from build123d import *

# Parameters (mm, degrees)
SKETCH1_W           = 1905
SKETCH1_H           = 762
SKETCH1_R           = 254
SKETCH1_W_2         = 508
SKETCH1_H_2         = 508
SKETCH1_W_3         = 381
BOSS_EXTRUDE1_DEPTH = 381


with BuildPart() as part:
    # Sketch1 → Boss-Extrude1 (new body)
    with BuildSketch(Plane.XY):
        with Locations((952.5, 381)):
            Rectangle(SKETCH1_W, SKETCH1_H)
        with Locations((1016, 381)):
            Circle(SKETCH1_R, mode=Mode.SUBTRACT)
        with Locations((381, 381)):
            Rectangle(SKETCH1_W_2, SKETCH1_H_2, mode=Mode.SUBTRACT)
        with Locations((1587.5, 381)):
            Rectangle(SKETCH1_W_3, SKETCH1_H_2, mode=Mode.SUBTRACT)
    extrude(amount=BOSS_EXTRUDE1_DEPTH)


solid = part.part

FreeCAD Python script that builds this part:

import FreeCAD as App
import Part
import Sketcher
from FreeCAD import Vector
Q = App.Units.Quantity

doc = App.newDocument("Part")
body = doc.addObject("PartDesign::Body", "Body")

# Sketch on XY plane
sketch1 = doc.addObject("Sketcher::SketchObject", "Sketch")
body.addObject(sketch1)
sketch1.AttachmentSupport = (doc.XY_Plane, [""])
sketch1.MapMode = "FlatFace"
sketch1.addGeometry([
    Part.LineSegment(Vector(0, 762, 0), Vector(0, 0, 0)),  # 0
    Part.LineSegment(Vector(0, 0, 0), Vector(1905, 0, 0)),  # 1
    Part.LineSegment(Vector(1905, 0, 0), Vector(1905, 762, 0)),  # 2
    Part.LineSegment(Vector(1905, 762, 0), Vector(0, 762, 0)),  # 3
    Part.LineSegment(Vector(635, 127, 0), Vector(127, 127, 0)),  # 4
    Part.LineSegment(Vector(127, 127, 0), Vector(127, 635, 0)),  # 5
    Part.LineSegment(Vector(127, 635, 0), Vector(635, 635, 0)),  # 6
    Part.LineSegment(Vector(635, 635, 0), Vector(635, 127, 0)),  # 7
    Part.Circle(Vector(1016, 381, 0), Vector(0, 0, 1), 254),  # 8
    Part.LineSegment(Vector(1778, 127, 0), Vector(1397, 127, 0)),  # 9
    Part.LineSegment(Vector(1397, 127, 0), Vector(1397, 635, 0)),  # 10
    Part.LineSegment(Vector(1397, 635, 0), Vector(1778, 635, 0)),  # 11
    Part.LineSegment(Vector(1778, 635, 0), Vector(1778, 127, 0)),  # 12
], False)
sketch1.addConstraint([
    Sketcher.Constraint("Coincident", 0, 2, 1, 1),
    Sketcher.Constraint("Coincident", 1, 2, 2, 1),
    Sketcher.Constraint("Coincident", 2, 2, 3, 1),
    Sketcher.Constraint("Coincident", 3, 2, 0, 1),
    Sketcher.Constraint("Coincident", 4, 2, 5, 1),
    Sketcher.Constraint("Coincident", 5, 2, 6, 1),
    Sketcher.Constraint("Coincident", 6, 2, 7, 1),
    Sketcher.Constraint("Coincident", 7, 2, 4, 1),
    Sketcher.Constraint("Coincident", 9, 2, 10, 1),
    Sketcher.Constraint("Coincident", 10, 2, 11, 1),
    Sketcher.Constraint("Coincident", 11, 2, 12, 1),
    Sketcher.Constraint("Coincident", 12, 2, 9, 1),
    Sketcher.Constraint("Vertical", 0),
    Sketcher.Constraint("Horizontal", 1),
    Sketcher.Constraint("Vertical", 2),
    Sketcher.Constraint("Horizontal", 3),
    Sketcher.Constraint("Horizontal", 4),
    Sketcher.Constraint("Vertical", 5),
    Sketcher.Constraint("Horizontal", 6),
    Sketcher.Constraint("Vertical", 7),
    Sketcher.Constraint("Horizontal", 9),
    Sketcher.Constraint("Vertical", 10),
    Sketcher.Constraint("Horizontal", 11),
    Sketcher.Constraint("Vertical", 12),
    Sketcher.Constraint("Coincident", 0, 2, -1, 1),
    Sketcher.Constraint("Horizontal", 7, 2, 9, 2),
    Sketcher.Constraint("Horizontal", 6, 2, 10, 2),
    Sketcher.Constraint("Equal", 6, 5),
    Sketcher.Constraint("Diameter", 8, Q("20 in")),
    Sketcher.Constraint("DistanceX", 1, 1, 1, 2, Q("75 in")),
    Sketcher.Constraint("DistanceX", 4, 2, 4, 1, Q("20 in")),
    Sketcher.Constraint("DistanceX", 9, 2, 9, 1, Q("15 in")),
    Sketcher.Constraint("DistanceY", 0, 2, 0, 1, Q("30 in")),
    Sketcher.Constraint("DistanceX", -1, 1, 8, 3, Q("40 in")),
    Sketcher.Constraint("DistanceY", -1, 1, 8, 3, Q("15 in")),
    Sketcher.Constraint("DistanceX", -1, 1, 4, 2, Q("5 in")),
    Sketcher.Constraint("DistanceY", -1, 1, 4, 2, Q("5 in")),
    Sketcher.Constraint("DistanceX", -1, 1, 9, 2, Q("55 in")),
])
pad1 = doc.addObject("PartDesign::Pad", "Pad")
body.addObject(pad1)
pad1.Profile = sketch1
pad1.Length = Q("15 in")

doc.recompute()
